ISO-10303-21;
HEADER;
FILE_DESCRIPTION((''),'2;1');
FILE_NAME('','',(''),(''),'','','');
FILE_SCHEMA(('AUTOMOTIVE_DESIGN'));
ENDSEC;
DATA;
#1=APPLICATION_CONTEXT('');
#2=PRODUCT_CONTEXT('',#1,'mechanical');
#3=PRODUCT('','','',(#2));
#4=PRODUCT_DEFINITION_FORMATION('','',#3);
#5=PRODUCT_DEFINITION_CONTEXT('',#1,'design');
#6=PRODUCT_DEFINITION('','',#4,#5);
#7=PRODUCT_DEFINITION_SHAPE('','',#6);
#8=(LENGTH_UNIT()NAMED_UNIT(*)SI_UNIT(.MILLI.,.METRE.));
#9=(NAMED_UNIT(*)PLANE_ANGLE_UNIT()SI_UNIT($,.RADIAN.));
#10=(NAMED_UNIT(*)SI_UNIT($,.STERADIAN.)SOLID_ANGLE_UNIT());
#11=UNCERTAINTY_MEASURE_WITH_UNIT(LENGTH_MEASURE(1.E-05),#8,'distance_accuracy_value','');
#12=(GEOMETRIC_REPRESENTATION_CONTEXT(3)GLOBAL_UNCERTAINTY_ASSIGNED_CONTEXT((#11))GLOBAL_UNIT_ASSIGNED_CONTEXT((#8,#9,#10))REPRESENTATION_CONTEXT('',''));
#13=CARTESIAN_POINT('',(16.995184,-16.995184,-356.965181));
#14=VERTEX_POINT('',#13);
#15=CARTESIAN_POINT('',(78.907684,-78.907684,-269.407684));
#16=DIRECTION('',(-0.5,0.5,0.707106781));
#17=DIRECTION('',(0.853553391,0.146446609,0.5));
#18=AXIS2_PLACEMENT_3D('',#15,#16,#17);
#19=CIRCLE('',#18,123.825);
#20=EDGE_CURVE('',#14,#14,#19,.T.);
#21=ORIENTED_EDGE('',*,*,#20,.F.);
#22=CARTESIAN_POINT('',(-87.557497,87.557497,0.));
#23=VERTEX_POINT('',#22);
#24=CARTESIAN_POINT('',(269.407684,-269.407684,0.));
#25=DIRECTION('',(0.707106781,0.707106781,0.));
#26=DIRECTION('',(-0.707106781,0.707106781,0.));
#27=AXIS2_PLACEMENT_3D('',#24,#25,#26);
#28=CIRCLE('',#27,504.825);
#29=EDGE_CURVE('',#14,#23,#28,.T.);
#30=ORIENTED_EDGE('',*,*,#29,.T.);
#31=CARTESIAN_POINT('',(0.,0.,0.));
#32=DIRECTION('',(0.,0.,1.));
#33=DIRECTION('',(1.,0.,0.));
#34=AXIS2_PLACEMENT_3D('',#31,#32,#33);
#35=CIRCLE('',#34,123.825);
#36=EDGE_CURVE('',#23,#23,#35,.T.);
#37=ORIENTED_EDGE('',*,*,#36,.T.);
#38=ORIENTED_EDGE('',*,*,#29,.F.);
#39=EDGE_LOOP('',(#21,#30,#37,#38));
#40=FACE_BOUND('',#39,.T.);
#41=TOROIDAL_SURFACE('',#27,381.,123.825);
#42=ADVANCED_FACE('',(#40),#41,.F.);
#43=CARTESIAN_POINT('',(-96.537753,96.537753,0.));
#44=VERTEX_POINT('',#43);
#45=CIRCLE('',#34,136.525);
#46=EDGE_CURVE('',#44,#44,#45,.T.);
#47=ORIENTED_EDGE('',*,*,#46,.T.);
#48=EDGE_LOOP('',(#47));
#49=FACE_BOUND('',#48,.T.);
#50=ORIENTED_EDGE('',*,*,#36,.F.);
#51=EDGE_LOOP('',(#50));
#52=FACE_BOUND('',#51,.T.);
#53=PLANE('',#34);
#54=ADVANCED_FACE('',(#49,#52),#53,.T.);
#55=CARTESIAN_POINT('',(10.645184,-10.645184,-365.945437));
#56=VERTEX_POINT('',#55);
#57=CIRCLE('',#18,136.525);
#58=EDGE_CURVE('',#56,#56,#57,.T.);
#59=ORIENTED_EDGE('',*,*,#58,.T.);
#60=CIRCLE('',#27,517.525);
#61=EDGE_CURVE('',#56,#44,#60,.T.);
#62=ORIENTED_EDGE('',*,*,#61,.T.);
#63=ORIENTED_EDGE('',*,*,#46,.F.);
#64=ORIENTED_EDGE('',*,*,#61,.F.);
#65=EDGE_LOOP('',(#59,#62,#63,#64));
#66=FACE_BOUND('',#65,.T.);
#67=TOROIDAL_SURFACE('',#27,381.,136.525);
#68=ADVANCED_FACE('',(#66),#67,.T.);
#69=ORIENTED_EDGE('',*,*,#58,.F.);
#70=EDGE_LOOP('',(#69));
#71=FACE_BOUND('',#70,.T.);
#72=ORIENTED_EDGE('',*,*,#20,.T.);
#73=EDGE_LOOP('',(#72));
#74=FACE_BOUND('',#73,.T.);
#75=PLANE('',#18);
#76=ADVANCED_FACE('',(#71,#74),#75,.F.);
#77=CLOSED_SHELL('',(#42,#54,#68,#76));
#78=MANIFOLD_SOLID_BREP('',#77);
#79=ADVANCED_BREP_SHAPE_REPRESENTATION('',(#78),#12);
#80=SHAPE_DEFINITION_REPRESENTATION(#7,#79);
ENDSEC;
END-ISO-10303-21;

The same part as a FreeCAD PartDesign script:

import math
import FreeCAD as App
import Part
import Sketcher
from FreeCAD import Vector
Q = App.Units.Quantity

doc = App.newDocument("Part")
body = doc.addObject("PartDesign::Body", "Body")

sketch1 = body.newObject("Sketcher::SketchObject", "Sketch")
sketch1.AttachmentSupport = (doc.getObject("XY_Plane"), [""])
sketch1.MapMode = "FlatFace"
sketch1.addGeometry([
    Part.Circle(Vector(0, 0, 0), Vector(0, 0, 1), 137),
    Part.Circle(Vector(0, 0, 0), Vector(0, 0, 1), 124),
], False)
sketch1.addConstraint([
    Sketcher.Constraint("Coincident", 0, 3, -1, 1),
    Sketcher.Constraint("Coincident", 1, 3, -1, 1),
    Sketcher.Constraint("Diameter", 0, Q("10.75 in")),
    Sketcher.Constraint("Diameter", 1, Q("9.75 in")),
])

sketch2 = body.newObject("Sketcher::SketchObject", "Sketch001")
sketch2.Placement = App.Placement(Vector(0, 0, 0), App.Rotation(Vector(-0.707106781, 0.707106781, 0), Vector(0, 0, 0.999999999), Vector(0.707106781, 0.707106781, 0), "ZXY"))
sketch2.addGeometry(Part.ArcOfCircle(Part.Circle(Vector(-381, 0, 0), Vector(0, 0, 1), 381), math.radians(-45), math.radians(0)), False)
sketch2.addConstraint([
    Sketcher.Constraint("Coincident", 0, 2, -1, 1),
    Sketcher.Constraint("PointOnObject", 0, 3, -1),
    Sketcher.Constraint("Radius", 0, Q("15 in")),
    Sketcher.Constraint("DistanceX", 0, 1, -1, 1, Q("111.592316 mm")),
])
doc.recompute()

additivepipe = body.newObject("PartDesign::AdditivePipe", "AdditivePipe")
additivepipe.Profile = sketch1
additivepipe.Spine = (sketch2, ["Edge1"])

doc.recompute()
